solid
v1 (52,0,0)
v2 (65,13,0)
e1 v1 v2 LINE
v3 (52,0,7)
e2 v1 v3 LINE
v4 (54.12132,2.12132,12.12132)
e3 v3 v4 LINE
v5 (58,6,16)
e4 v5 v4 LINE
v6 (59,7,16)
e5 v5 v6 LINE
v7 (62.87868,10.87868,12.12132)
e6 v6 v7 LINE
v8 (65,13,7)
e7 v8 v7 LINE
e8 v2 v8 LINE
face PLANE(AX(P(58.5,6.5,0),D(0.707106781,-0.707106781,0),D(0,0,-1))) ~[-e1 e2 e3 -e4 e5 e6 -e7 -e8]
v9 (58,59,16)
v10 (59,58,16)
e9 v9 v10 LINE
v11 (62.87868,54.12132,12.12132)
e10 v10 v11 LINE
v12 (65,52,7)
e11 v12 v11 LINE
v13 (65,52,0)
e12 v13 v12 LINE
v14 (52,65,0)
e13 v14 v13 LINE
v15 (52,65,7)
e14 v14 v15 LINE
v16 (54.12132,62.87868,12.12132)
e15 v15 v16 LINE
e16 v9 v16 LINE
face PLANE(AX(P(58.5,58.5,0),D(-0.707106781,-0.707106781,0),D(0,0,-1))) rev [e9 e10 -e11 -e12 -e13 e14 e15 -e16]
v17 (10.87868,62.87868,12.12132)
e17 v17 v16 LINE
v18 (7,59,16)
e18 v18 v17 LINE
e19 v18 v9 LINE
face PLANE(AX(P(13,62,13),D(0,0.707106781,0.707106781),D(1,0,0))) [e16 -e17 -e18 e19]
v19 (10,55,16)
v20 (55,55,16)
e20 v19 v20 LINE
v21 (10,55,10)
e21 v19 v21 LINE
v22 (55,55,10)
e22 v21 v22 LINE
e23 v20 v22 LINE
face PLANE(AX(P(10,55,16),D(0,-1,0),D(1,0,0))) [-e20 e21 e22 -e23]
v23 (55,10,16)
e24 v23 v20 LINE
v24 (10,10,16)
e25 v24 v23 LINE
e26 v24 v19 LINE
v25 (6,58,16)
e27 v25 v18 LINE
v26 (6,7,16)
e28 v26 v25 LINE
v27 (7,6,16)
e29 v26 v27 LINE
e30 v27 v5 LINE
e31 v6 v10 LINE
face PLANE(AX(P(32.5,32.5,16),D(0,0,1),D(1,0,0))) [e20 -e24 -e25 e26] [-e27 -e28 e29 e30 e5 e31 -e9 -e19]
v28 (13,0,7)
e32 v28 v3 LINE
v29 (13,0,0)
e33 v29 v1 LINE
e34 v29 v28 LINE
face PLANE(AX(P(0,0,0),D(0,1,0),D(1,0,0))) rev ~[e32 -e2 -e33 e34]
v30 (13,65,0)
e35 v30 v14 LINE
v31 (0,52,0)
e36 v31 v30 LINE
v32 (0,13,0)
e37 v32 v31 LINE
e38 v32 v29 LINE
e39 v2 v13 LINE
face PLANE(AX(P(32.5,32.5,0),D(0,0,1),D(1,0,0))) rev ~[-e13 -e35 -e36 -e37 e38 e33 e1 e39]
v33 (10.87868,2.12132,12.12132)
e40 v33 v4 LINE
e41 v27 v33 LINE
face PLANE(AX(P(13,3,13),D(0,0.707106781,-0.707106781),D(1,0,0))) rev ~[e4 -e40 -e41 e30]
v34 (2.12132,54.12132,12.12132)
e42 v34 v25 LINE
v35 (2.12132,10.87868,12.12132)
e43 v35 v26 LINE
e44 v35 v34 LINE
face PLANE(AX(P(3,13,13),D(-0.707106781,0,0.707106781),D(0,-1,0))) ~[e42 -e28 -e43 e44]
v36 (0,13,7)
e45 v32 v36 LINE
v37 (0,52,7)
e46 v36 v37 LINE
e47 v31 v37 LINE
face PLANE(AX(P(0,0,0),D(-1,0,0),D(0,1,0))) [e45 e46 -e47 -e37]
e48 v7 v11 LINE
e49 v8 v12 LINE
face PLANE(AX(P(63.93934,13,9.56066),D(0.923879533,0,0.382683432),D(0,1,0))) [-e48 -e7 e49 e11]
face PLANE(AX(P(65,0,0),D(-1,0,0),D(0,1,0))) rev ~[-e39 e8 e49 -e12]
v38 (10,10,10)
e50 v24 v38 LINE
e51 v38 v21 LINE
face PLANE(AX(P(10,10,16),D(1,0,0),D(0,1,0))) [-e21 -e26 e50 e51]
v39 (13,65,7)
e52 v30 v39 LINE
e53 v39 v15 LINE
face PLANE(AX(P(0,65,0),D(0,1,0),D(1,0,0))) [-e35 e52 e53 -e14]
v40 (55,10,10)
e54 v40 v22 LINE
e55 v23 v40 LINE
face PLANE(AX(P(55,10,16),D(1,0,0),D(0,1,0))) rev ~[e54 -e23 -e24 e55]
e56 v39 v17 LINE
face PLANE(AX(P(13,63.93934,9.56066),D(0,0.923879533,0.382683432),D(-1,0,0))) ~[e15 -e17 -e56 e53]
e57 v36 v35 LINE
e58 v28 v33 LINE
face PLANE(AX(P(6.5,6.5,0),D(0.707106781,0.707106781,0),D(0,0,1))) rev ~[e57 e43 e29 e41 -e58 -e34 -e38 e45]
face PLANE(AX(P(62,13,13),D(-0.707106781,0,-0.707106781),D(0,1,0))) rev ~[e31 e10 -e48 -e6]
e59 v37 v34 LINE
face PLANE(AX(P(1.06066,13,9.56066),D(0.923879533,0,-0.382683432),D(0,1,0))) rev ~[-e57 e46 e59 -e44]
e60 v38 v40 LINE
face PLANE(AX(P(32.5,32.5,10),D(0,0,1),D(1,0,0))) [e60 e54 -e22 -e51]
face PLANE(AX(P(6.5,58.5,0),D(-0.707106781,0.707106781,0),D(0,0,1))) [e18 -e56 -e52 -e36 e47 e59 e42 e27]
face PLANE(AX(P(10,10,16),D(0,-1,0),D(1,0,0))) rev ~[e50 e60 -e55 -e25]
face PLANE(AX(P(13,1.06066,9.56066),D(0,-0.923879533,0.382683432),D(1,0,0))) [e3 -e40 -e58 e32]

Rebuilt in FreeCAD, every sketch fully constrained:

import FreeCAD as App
import Part
import Sketcher

V = App.Vector
Q = App.Units.Quantity


def edges_at(feature, points):
    """Names of the edges that pass closest to the given points."""
    edges = feature.Shape.Edges
    near = lambda p: min(range(len(edges)), key=lambda i: edges[i].distToShape(Part.Vertex(*p))[0])
    return sorted({f"Edge{near(p) + 1}" for p in points})


def add_polygon(sketch, points):
    """Adds a closed chain of lines whose ends are joined by coincident constraints."""
    first, n = sketch.GeometryCount, len(points)
    for a, b in zip(points, points[1:] + points[:1]):
        sketch.addGeometry(Part.LineSegment(App.Vector(*a, 0), App.Vector(*b, 0)), False)
    for i in range(n):
        sketch.addConstraint(Sketcher.Constraint("Coincident", first + i, 2, first + (i + 1) % n, 1))

doc = App.newDocument("Part")
body = doc.addObject("PartDesign::Body", "Body")

# Sketch on XY plane
sketch1 = body.newObject("Sketcher::SketchObject", "Sketch")
sketch1.AttachmentSupport = (doc.getObject("XY_Plane"), [""])
sketch1.MapMode = "FlatFace"
add_polygon(sketch1, [(0, 65), (0, 0), (65, 0), (65, 65)])  # lines 0-3
sketch1.addConstraint(Sketcher.Constraint("Vertical", 0))
sketch1.addConstraint(Sketcher.Constraint("Horizontal", 1))
sketch1.addConstraint(Sketcher.Constraint("Vertical", 2))
sketch1.addConstraint(Sketcher.Constraint("Horizontal", 3))
sketch1.addConstraint(Sketcher.Constraint("Coincident", 0, 2, -1, 1))
sketch1.addConstraint(Sketcher.Constraint("Equal", 3, 0))
sketch1.addConstraint(Sketcher.Constraint("DistanceX", 1, 1, 1, 2, Q("65 mm")))
pad1 = body.newObject("PartDesign::Pad", "Pad")
pad1.Profile = sketch1
pad1.Length = 16

# Sketch on XY plane
sketch2 = body.newObject("Sketcher::SketchObject", "Sketch001")
sketch2.AttachmentSupport = (doc.getObject("XY_Plane"), [""])
sketch2.MapMode = "FlatFace"
sketch2.AttachmentOffset = App.Placement(V(0, 0, 16), App.Rotation())
add_polygon(sketch2, [(10, 55), (10, 10), (55, 10), (55, 55)])  # lines 0-3
sketch2.addConstraint(Sketcher.Constraint("Vertical", 0))
sketch2.addConstraint(Sketcher.Constraint("Horizontal", 1))
sketch2.addConstraint(Sketcher.Constraint("Vertical", 2))
sketch2.addConstraint(Sketcher.Constraint("Horizontal", 3))
sketch2.addConstraint(Sketcher.Constraint("Equal", 3, 0))
sketch2.addConstraint(Sketcher.Constraint("DistanceX", 1, 1, 1, 2, Q("45 mm")))
sketch2.addConstraint(Sketcher.Constraint("DistanceX", -1, 1, 0, 2, Q("10 mm")))
sketch2.addConstraint(Sketcher.Constraint("DistanceY", -1, 1, 0, 2, Q("10 mm")))
pocket1 = body.newObject("PartDesign::Pocket", "Pocket")
pocket1.Profile = sketch2
pocket1.Length = 6
doc.recompute()

chamfer = body.newObject("PartDesign::Chamfer", "Chamfer")
chamfer.Base = (pocket1, edges_at(pocket1, [
    (0, 0, 8),
    (65, 0, 8),
    (65, 65, 8),
    (0, 65, 8),
]))
chamfer.Size = 13
doc.recompute()

chamfer2 = body.newObject("PartDesign::Chamfer", "Chamfer001")
chamfer2.Base = (chamfer, edges_at(chamfer, [
    (32.5, 0, 16),
    (65, 32.5, 16),
    (32.5, 65, 16),
    (0, 32.5, 16),
]))
chamfer2.Size = 6
doc.recompute()

chamfer3 = body.newObject("PartDesign::Chamfer", "Chamfer002")
chamfer3.Base = (chamfer2, edges_at(chamfer2, [
    (32.5, 0, 10),
    (65, 32.5, 10),
    (32.5, 65, 10),
    (0, 32.5, 10),
]))
chamfer3.Size = 3

doc.recompute()
